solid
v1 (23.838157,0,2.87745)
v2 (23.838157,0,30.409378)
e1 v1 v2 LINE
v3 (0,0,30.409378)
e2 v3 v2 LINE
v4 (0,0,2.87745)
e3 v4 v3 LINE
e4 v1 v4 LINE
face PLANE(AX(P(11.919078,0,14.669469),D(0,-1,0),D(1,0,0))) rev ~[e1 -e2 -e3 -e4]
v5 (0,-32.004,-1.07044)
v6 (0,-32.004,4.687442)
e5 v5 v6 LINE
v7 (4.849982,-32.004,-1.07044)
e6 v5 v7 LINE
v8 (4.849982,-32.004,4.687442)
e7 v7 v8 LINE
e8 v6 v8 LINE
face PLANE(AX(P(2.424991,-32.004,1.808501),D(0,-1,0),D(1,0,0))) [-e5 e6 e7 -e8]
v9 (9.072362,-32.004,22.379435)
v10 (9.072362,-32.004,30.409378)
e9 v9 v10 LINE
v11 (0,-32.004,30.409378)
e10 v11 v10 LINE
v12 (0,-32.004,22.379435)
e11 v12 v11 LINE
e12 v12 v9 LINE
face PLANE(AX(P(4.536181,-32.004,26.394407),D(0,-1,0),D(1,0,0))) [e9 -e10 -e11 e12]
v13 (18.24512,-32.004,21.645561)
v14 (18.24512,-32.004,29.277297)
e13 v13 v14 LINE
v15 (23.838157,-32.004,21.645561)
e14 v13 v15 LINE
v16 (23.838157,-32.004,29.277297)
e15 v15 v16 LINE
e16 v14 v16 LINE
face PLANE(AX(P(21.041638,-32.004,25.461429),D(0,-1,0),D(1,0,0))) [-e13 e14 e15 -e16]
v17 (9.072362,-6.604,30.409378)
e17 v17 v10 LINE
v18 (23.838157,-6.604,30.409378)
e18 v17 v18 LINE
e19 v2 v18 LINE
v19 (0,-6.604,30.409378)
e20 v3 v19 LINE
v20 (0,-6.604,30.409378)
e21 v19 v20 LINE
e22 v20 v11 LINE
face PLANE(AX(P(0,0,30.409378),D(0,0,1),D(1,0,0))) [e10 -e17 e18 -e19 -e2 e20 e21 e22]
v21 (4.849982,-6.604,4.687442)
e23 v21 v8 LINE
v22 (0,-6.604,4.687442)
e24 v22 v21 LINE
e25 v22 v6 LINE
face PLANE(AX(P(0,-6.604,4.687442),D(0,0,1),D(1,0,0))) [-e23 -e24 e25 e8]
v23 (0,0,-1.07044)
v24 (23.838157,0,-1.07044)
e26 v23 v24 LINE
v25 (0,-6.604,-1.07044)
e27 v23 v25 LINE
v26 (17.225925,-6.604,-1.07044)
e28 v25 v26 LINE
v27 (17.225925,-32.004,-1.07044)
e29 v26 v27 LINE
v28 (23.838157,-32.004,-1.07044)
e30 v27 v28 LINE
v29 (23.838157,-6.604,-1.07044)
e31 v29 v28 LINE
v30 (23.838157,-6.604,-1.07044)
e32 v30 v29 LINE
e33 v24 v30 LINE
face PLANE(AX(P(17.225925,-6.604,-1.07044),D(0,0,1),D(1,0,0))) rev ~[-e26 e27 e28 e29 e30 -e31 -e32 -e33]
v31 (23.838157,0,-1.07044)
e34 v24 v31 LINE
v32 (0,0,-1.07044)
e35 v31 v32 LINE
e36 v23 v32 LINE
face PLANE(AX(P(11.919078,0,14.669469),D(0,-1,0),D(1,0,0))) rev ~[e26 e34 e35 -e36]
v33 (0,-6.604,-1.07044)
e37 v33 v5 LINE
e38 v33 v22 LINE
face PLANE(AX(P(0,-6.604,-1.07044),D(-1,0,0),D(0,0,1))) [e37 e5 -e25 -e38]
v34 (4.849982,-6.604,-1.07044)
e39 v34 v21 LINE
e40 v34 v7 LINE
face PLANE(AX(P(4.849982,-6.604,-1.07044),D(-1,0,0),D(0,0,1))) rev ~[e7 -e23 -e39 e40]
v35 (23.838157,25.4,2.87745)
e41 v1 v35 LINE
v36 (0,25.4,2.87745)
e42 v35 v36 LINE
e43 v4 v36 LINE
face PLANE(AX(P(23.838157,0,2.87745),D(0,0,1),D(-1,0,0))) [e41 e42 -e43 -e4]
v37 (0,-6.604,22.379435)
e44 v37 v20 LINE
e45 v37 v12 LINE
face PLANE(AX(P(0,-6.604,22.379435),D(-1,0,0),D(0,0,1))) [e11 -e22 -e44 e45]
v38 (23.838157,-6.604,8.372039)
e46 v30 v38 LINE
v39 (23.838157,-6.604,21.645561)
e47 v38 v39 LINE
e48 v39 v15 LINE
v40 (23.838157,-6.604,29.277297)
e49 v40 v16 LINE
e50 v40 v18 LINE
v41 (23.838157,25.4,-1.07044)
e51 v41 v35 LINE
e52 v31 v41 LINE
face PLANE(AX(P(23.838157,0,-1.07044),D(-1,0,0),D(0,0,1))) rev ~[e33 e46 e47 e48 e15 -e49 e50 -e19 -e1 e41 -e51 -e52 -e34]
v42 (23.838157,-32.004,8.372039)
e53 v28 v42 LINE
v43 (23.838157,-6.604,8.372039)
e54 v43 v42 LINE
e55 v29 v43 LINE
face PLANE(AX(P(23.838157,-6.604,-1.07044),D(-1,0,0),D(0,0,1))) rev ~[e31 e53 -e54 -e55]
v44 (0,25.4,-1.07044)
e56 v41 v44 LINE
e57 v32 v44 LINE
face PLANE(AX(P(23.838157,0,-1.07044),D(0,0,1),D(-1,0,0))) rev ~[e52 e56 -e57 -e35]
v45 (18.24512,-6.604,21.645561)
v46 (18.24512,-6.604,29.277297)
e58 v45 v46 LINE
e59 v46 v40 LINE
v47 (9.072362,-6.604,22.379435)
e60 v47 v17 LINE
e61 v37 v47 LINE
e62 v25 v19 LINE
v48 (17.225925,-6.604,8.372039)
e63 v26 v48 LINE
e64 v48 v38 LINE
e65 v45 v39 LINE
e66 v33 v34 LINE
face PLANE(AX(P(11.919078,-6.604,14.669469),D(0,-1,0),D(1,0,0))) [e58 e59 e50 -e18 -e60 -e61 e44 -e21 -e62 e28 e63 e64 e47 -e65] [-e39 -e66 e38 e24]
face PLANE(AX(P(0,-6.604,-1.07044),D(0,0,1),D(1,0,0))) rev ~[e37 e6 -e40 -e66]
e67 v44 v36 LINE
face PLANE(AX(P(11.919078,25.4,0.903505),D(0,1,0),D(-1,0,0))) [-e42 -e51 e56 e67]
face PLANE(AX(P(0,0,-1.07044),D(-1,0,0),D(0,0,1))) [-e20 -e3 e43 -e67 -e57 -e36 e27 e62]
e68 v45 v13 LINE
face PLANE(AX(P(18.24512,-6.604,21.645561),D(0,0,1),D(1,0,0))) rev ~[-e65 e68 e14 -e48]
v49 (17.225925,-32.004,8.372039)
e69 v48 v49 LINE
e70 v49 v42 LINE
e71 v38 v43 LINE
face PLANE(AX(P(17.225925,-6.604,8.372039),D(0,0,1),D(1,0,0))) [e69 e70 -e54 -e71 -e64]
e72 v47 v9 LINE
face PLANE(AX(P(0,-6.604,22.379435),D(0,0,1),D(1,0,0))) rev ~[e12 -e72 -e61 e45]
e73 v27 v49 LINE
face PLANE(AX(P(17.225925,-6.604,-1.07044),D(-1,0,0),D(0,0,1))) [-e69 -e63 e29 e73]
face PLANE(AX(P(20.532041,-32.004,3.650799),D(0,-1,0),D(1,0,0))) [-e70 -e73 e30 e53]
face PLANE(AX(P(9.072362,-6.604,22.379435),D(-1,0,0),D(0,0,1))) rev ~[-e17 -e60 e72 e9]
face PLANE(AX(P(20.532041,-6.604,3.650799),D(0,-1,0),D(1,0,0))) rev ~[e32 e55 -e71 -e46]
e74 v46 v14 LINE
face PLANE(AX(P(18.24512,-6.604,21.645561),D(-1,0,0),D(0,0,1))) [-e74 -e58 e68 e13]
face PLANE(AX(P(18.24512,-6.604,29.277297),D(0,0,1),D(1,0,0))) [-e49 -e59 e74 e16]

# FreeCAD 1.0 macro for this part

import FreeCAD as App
import Part
import Sketcher
from FreeCAD import Vector
Q = App.Units.Quantity

doc = App.newDocument("Part")
params = doc.addObject("Spreadsheet::Sheet", "Params")
for row, (alias, value) in enumerate([
    ("pad1_length", "0.26 in"),
    ("pad2_length", "1 in"),
    ("pad3_length", "1 in"),
], start=1):
    params.set(f"A{row}", alias)
    params.set(f"B{row}", "=" + value)
    params.setAlias(f"B{row}", alias)

body = doc.addObject("PartDesign::Body", "Body")

sketch1 = doc.addObject("Sketcher::SketchObject", "Sketch")
body.addObject(sketch1)
sketch1.AttachmentSupport = (doc.XZ_Plane, [""])
sketch1.MapMode = "FlatFace"
sketch1.addGeometry(Part.LineSegment(Vector(0, 30, 0), Vector(0, -1, 0)), False)
sketch1.addGeometry(Part.LineSegment(Vector(0, -1, 0), Vector(24, -1, 0)), False)
sketch1.addGeometry(Part.LineSegment(Vector(24, -1, 0), Vector(24, 30, 0)), False)
sketch1.addGeometry(Part.LineSegment(Vector(24, 30, 0), Vector(0, 30, 0)), False)
sketch1.addConstraint(Sketcher.Constraint("Coincident", 0, 2, 1, 1))
sketch1.addConstraint(Sketcher.Constraint("Coincident", 1, 2, 2, 1))
sketch1.addConstraint(Sketcher.Constraint("Coincident", 2, 2, 3, 1))
sketch1.addConstraint(Sketcher.Constraint("Coincident", 3, 2, 0, 1))
sketch1.addConstraint(Sketcher.Constraint("Vertical", 0))
sketch1.addConstraint(Sketcher.Constraint("Horizontal", 1))
sketch1.addConstraint(Sketcher.Constraint("Vertical", 2))
sketch1.addConstraint(Sketcher.Constraint("Horizontal", 3))
sketch1.addConstraint(Sketcher.Constraint("PointOnObject", 0, 2, -2))
sketch1.addConstraint(Sketcher.Constraint("DistanceY", 0, 2, 0, 1, Q("31.479819 mm")))
sketch1.addConstraint(Sketcher.Constraint("DistanceX", 1, 1, 1, 2, Q("23.838157 mm")))
sketch1.addConstraint(Sketcher.Constraint("DistanceY", 0, 2, -1, 1, Q("1.07044 mm")))
pad1 = doc.addObject("PartDesign::Pad", "Pad")
body.addObject(pad1)
pad1.Profile = sketch1
pad1.setExpression("Length", "Params.pad1_length")

sketch2 = doc.addObject("Sketcher::SketchObject", "Sketch001")
body.addObject(sketch2)
sketch2.AttachmentSupport = (doc.XZ_Plane, [""])
sketch2.MapMode = "FlatFace"
sketch2.AttachmentOffset = App.Placement(Vector(0, 0, 0.26 * 25.4), App.Rotation())
sketch2.addGeometry(Part.LineSegment(Vector(18.2, 29.3, 0), Vector(18.2, 21.6, 0)), False)
sketch2.addGeometry(Part.LineSegment(Vector(18.2, 21.6, 0), Vector(23.8, 21.6, 0)), False)
sketch2.addGeometry(Part.LineSegment(Vector(23.8, 21.6, 0), Vector(23.8, 29.3, 0)), False)
sketch2.addGeometry(Part.LineSegment(Vector(23.8, 29.3, 0), Vector(18.2, 29.3, 0)), False)
sketch2.addGeometry(Part.LineSegment(Vector(0, 4.7, 0), Vector(0, -1.1, 0)), False)
sketch2.addGeometry(Part.LineSegment(Vector(0, -1.1, 0), Vector(4.8, -1.1, 0)), False)
sketch2.addGeometry(Part.LineSegment(Vector(4.8, -1.1, 0), Vector(4.8, 4.7, 0)), False)
sketch2.addGeometry(Part.LineSegment(Vector(4.8, 4.7, 0), Vector(0, 4.7, 0)), False)
sketch2.addGeometry(Part.LineSegment(Vector(17.2, 8.4, 0), Vector(17.2, -1.1, 0)), False)
sketch2.addGeometry(Part.LineSegment(Vector(17.2, -1.1, 0), Vector(23.8, -1.1, 0)), False)
sketch2.addGeometry(Part.LineSegment(Vector(23.8, -1.1, 0), Vector(23.8, 8.4, 0)), False)
sketch2.addGeometry(Part.LineSegment(Vector(23.8, 8.4, 0), Vector(17.2, 8.4, 0)), False)
sketch2.addGeometry(Part.LineSegment(Vector(0, 30.4, 0), Vector(0, 22.4, 0)), False)
sketch2.addGeometry(Part.LineSegment(Vector(0, 22.4, 0), Vector(9.1, 22.4, 0)), False)
sketch2.addGeometry(Part.LineSegment(Vector(9.1, 22.4, 0), Vector(9.1, 30.4, 0)), False)
sketch2.addGeometry(Part.LineSegment(Vector(9.1, 30.4, 0), Vector(0, 30.4, 0)), False)
sketch2.addConstraint(Sketcher.Constraint("Coincident", 0, 2, 1, 1))
sketch2.addConstraint(Sketcher.Constraint("Coincident", 1, 2, 2, 1))
sketch2.addConstraint(Sketcher.Constraint("Coincident", 2, 2, 3, 1))
sketch2.addConstraint(Sketcher.Constraint("Coincident", 3, 2, 0, 1))
sketch2.addConstraint(Sketcher.Constraint("Coincident", 4, 2, 5, 1))
sketch2.addConstraint(Sketcher.Constraint("Coincident", 5, 2, 6, 1))
sketch2.addConstraint(Sketcher.Constraint("Coincident", 6, 2, 7, 1))
sketch2.addConstraint(Sketcher.Constraint("Coincident", 7, 2, 4, 1))
sketch2.addConstraint(Sketcher.Constraint("Coincident", 8, 2, 9, 1))
sketch2.addConstraint(Sketcher.Constraint("Coincident", 9, 2, 10, 1))
sketch2.addConstraint(Sketcher.Constraint("Coincident", 10, 2, 11, 1))
sketch2.addConstraint(Sketcher.Constraint("Coincident", 11, 2, 8, 1))
sketch2.addConstraint(Sketcher.Constraint("Coincident", 12, 2, 13, 1))
sketch2.addConstraint(Sketcher.Constraint("Coincident", 13, 2, 14, 1))
sketch2.addConstraint(Sketcher.Constraint("Coincident", 14, 2, 15, 1))
sketch2.addConstraint(Sketcher.Constraint("Coincident", 15, 2, 12, 1))
sketch2.addConstraint(Sketcher.Constraint("Vertical", 0))
sketch2.addConstraint(Sketcher.Constraint("Horizontal", 1))
sketch2.addConstraint(Sketcher.Constraint("Vertical", 2))
sketch2.addConstraint(Sketcher.Constraint("Horizontal", 3))
sketch2.addConstraint(Sketcher.Constraint("Vertical", 4))
sketch2.addConstraint(Sketcher.Constraint("Horizontal", 5))
sketch2.addConstraint(Sketcher.Constraint("Vertical", 6))
sketch2.addConstraint(Sketcher.Constraint("Horizontal", 7))
sketch2.addConstraint(Sketcher.Constraint("Vertical", 8))
sketch2.addConstraint(Sketcher.Constraint("Horizontal", 9))
sketch2.addConstraint(Sketcher.Constraint("Vertical", 10))
sketch2.addConstraint(Sketcher.Constraint("Horizontal", 11))
sketch2.addConstraint(Sketcher.Constraint("Vertical", 12))
sketch2.addConstraint(Sketcher.Constraint("Horizontal", 13))
sketch2.addConstraint(Sketcher.Constraint("Vertical", 14))
sketch2.addConstraint(Sketcher.Constraint("Horizontal", 15))
sketch2.addConstraint(Sketcher.Constraint("PointOnObject", 4, 2, -2))
sketch2.addConstraint(Sketcher.Constraint("PointOnObject", 12, 2, -2))
sketch2.addConstraint(Sketcher.Constraint("Horizontal", 5, 2, 8, 2))
sketch2.addConstraint(Sketcher.Constraint("Vertical", 2, 2, 9, 2))
sketch2.addConstraint(Sketcher.Constraint("DistanceX", 5, 1, 5, 2, Q("4.849982 mm")))
sketch2.addConstraint(Sketcher.Constraint("DistanceX", 9, 1, 9, 2, Q("6.612232 mm")))
sketch2.addConstraint(Sketcher.Constraint("DistanceY", 8, 2, 8, 1, Q("9.442479 mm")))
sketch2.addConstraint(Sketcher.Constraint("DistanceY", 4, 2, 0, 2, Q("22.716001 mm")))
sketch2.addConstraint(Sketcher.Constraint("DistanceX", 1, 1, 1, 2, Q("5.593037 mm")))
sketch2.addConstraint(Sketcher.Constraint("DistanceX", 13, 1, 13, 2, Q("9.072362 mm")))
sketch2.addConstraint(Sketcher.Constraint("DistanceY", 0, 2, 0, 1, Q("7.631736 mm")))
sketch2.addConstraint(Sketcher.Constraint("DistanceY", 4, 2, 4, 1, Q("5.757882 mm")))
sketch2.addConstraint(Sketcher.Constraint("DistanceY", 12, 2, 12, 1, Q("8.029943 mm")))
sketch2.addConstraint(Sketcher.Constraint("DistanceX", -1, 1, 0, 2, Q("18.24512 mm")))
sketch2.addConstraint(Sketcher.Constraint("DistanceY", -1, 1, 0, 2, Q("21.645561 mm")))
sketch2.addConstraint(Sketcher.Constraint("DistanceY", -1, 1, 14, 2, Q("30.409378 mm")))
pad2 = doc.addObject("PartDesign::Pad", "Pad001")
body.addObject(pad2)
pad2.Profile = sketch2
pad2.setExpression("Length", "Params.pad2_length")

sketch3 = doc.addObject("Sketcher::SketchObject", "Sketch002")
body.addObject(sketch3)
sketch3.AttachmentSupport = (doc.XZ_Plane, [""])
sketch3.MapMode = "FlatFace"
sketch3.addGeometry(Part.LineSegment(Vector(23.8, 2.9, 0), Vector(23.8, -1.1, 0)), False)
sketch3.addGeometry(Part.LineSegment(Vector(23.8, -1.1, 0), Vector(0, -1.1, 0)), False)
sketch3.addGeometry(Part.LineSegment(Vector(0, -1.1, 0), Vector(0, 2.9, 0)), False)
sketch3.addGeometry(Part.LineSegment(Vector(0, 2.9, 0), Vector(23.8, 2.9, 0)), False)
sketch3.addConstraint(Sketcher.Constraint("Coincident", 0, 2, 1, 1))
sketch3.addConstraint(Sketcher.Constraint("Coincident", 1, 2, 2, 1))
sketch3.addConstraint(Sketcher.Constraint("Coincident", 2, 2, 3, 1))
sketch3.addConstraint(Sketcher.Constraint("Coincident", 3, 2, 0, 1))
sketch3.addConstraint(Sketcher.Constraint("Vertical", 0))
sketch3.addConstraint(Sketcher.Constraint("Horizontal", 1))
sketch3.addConstraint(Sketcher.Constraint("Vertical", 2))
sketch3.addConstraint(Sketcher.Constraint("Horizontal", 3))
sketch3.addConstraint(Sketcher.Constraint("PointOnObject", 1, 2, -2))
sketch3.addConstraint(Sketcher.Constraint("DistanceY", 0, 2, 0, 1, Q("3.94789 mm")))
sketch3.addConstraint(Sketcher.Constraint("DistanceX", 1, 2, 1, 1, Q("23.838157 mm")))
sketch3.addConstraint(Sketcher.Constraint("DistanceY", 0, 2, -1, 1, Q("1.07044 mm")))
pad3 = doc.addObject("PartDesign::Pad", "Pad002")
body.addObject(pad3)
pad3.Profile = sketch3
pad3.setExpression("Length", "Params.pad3_length")
pad3.Reversed = True

doc.recompute()
